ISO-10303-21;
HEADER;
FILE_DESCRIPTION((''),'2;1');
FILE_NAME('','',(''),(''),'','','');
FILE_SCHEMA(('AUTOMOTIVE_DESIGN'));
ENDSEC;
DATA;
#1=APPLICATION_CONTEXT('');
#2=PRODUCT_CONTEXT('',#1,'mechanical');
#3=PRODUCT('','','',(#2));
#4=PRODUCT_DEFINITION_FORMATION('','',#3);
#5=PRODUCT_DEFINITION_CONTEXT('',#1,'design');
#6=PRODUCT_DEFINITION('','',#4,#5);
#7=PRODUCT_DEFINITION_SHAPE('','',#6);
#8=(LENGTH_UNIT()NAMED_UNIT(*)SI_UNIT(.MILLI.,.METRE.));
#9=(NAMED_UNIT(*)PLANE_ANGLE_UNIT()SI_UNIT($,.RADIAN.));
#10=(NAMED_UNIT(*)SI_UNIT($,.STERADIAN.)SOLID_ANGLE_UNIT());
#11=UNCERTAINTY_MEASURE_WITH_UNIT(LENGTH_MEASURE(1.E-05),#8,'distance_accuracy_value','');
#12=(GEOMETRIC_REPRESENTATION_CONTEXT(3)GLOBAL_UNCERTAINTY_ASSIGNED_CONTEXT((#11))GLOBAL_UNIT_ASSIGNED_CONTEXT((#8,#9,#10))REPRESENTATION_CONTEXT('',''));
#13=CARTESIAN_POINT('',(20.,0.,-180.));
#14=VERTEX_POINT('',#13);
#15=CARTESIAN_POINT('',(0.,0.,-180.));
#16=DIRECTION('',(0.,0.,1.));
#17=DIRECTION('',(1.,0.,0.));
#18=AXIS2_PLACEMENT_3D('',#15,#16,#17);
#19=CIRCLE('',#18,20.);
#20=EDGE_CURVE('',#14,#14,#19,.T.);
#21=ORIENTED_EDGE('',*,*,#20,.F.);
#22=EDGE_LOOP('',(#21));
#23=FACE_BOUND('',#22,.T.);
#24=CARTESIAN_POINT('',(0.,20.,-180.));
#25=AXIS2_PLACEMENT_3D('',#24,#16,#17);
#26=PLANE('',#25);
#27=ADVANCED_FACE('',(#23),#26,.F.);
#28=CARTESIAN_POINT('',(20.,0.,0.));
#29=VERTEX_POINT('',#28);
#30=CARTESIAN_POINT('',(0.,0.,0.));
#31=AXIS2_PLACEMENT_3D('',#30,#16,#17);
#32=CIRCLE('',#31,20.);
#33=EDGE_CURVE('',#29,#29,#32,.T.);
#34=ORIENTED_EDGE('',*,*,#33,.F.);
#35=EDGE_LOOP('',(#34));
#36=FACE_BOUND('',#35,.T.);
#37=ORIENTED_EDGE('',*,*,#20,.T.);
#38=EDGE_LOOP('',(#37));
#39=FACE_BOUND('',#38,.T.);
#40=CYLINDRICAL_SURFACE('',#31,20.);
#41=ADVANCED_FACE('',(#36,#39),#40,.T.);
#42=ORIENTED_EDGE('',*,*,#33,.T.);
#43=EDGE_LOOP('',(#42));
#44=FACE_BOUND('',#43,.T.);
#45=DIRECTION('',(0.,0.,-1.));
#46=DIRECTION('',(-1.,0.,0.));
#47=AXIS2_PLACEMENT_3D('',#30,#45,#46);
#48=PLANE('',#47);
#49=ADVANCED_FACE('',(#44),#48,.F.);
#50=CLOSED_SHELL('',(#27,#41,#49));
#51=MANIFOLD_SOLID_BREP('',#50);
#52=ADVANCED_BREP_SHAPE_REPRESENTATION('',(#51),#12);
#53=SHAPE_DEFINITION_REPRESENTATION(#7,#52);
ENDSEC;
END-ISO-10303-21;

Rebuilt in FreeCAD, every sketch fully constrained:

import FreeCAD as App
import Part
import Sketcher

V = App.Vector


def add_polygon(sketch, points):
    """Adds a closed chain of lines whose ends are joined by coincident constraints."""
    first, n = sketch.GeometryCount, len(points)
    for a, b in zip(points, points[1:] + points[:1]):
        sketch.addGeometry(Part.LineSegment(App.Vector(*a, 0), App.Vector(*b, 0)), False)
    for i in range(n):
        sketch.addConstraint(Sketcher.Constraint("Coincident", first + i, 2, first + (i + 1) % n, 1))

doc = App.newDocument("Part")
params = doc.addObject("Spreadsheet::Sheet", "Params")
for row, (alias, value) in enumerate([
    ("sketch1_width", "20 mm"),
    ("sketch1_height", "180 mm"),
    ("revolution_angle", "360 deg"),
], start=1):
    params.set(f"A{row}", alias)
    params.set(f"B{row}", "=" + value)
    params.setAlias(f"B{row}", alias)

body = doc.addObject("PartDesign::Body", "Body")

sketch1 = body.newObject("Sketcher::SketchObject", "Sketch")
sketch1.AttachmentSupport = (doc.getObject("YZ_Plane"), [""])
sketch1.MapMode = "FlatFace"
add_polygon(sketch1, [(20, 0), (0, 0), (0, -180), (20, -180)])
sketch1.addConstraint([
    Sketcher.Constraint("Horizontal", 0),
    Sketcher.Constraint("Vertical", 1),
    Sketcher.Constraint("Horizontal", 2),
    Sketcher.Constraint("Vertical", 3),
    Sketcher.Constraint("Coincident", 0, 2, -1, 1),
    Sketcher.Constraint("DistanceX", 0, 2, 0, 1, 20.0),
    Sketcher.Constraint("DistanceY", 1, 2, 1, 1, 180.0),
])
sketch1.setExpression("Constraints[9]", "Params.sketch1_width")
sketch1.setExpression("Constraints[10]", "Params.sketch1_height")
revolution = body.newObject("PartDesign::Revolution", "Revolution")
revolution.Profile = sketch1
revolution.ReferenceAxis = (sketch1, ["V_Axis"])
revolution.setExpression("Angle", "Params.revolution_angle")

doc.recompute()
